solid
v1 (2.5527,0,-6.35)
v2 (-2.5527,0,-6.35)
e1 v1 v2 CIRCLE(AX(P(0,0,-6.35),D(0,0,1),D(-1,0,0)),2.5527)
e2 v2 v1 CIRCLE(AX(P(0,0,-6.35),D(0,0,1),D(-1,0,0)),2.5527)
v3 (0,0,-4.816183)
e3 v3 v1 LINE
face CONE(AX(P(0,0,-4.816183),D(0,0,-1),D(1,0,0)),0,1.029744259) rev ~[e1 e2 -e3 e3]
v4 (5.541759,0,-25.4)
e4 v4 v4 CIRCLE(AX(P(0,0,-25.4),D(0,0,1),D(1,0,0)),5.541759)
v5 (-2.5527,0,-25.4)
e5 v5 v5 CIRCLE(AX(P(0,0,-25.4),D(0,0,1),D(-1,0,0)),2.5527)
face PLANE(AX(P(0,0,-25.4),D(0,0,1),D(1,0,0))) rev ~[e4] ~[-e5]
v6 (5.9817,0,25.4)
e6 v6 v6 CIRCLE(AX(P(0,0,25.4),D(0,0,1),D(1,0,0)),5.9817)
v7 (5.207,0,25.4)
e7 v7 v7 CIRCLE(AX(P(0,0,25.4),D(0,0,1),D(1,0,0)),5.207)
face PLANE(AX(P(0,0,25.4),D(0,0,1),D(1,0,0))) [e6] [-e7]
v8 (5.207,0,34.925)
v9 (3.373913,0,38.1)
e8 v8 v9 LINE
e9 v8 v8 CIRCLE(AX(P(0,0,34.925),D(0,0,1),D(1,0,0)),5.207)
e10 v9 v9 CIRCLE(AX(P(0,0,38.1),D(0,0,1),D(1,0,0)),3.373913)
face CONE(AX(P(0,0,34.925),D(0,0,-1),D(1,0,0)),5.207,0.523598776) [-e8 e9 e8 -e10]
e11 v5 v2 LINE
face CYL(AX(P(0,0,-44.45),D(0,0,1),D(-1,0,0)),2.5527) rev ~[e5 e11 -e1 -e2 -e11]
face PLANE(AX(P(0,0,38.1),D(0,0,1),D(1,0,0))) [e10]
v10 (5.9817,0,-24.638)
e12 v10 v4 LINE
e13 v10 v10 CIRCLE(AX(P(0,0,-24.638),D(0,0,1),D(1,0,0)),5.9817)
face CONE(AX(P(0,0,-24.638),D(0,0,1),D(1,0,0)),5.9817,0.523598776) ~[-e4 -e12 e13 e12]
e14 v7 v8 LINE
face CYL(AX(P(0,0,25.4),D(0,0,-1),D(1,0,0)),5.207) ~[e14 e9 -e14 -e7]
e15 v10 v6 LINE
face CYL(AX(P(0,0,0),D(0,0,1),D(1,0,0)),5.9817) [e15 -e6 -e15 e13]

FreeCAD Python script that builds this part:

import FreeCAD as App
import Part
import Sketcher

V = App.Vector
Q = App.Units.Quantity


def edges_at(feature, points):
    """Names of the edges that pass closest to the given points."""
    edges = feature.Shape.Edges
    near = lambda p: min(range(len(edges)), key=lambda i: edges[i].distToShape(Part.Vertex(*p))[0])
    return sorted({f"Edge{near(p) + 1}" for p in points})

doc = App.newDocument("Part")
body = doc.addObject("PartDesign::Body", "Body")

# Sketch on XY plane
sketch1 = body.newObject("Sketcher::SketchObject", "Sketch")
sketch1.AttachmentSupport = (doc.getObject("XY_Plane"), [""])
sketch1.MapMode = "FlatFace"
sketch1.addGeometry(Part.Circle(V(0, 0, 0), V(0, 0, 1), 6), False)
sketch1.addConstraint([
    Sketcher.Constraint("Coincident", 0, 3, -1, 1),
    Sketcher.Constraint("Diameter", 0, Q("0.471 in")),
])
pad1 = body.newObject("PartDesign::Pad", "Pad")
pad1.Profile = sketch1
pad1.Length = Q("2 in")
pad1.Midplane = True

# Sketch on XY plane
sketch2 = body.newObject("Sketcher::SketchObject", "Sketch001")
sketch2.AttachmentSupport = (doc.getObject("XY_Plane"), [""])
sketch2.MapMode = "FlatFace"
sketch2.AttachmentOffset = App.Placement(V(0, 0, 1 * 25.4), App.Rotation())
sketch2.addGeometry(Part.Circle(V(0, 0, 0), V(0, 0, 1), 5), False)
sketch2.addConstraint([
    Sketcher.Constraint("Coincident", 0, 3, -1, 1),
    Sketcher.Constraint("Diameter", 0, Q("0.41 in")),
])
pad2 = body.newObject("PartDesign::Pad", "Pad001")
pad2.Profile = sketch2
pad2.Length = Q("0.5 in")
doc.recompute()

chamfer = body.newObject("PartDesign::Chamfer", "Chamfer")
chamfer.Base = (pad2, edges_at(pad2, [(-5.207, 0, 38.1)]))
chamfer.ChamferType = "Two distances"
chamfer.Size = Q("0.125 in")
chamfer.Size2 = 1.833087
doc.recompute()

chamfer2 = body.newObject("PartDesign::Chamfer", "Chamfer001")
chamfer2.Base = (chamfer, edges_at(chamfer, [(-5.982, 0, -25.4)]))
chamfer2.ChamferType = "Two distances"
chamfer2.Size = Q("0.03 in")
chamfer2.Size2 = 0.439941

# Sketch on XY plane
sketch3 = body.newObject("Sketcher::SketchObject", "Sketch002")
sketch3.AttachmentSupport = (doc.getObject("XY_Plane"), [""])
sketch3.MapMode = "FlatFace"
sketch3.AttachmentOffset = App.Placement(V(0, 0, -1 * 25.4), App.Rotation())
sketch3.addGeometry(Part.Circle(V(0, 0, 0), V(0, 0, 1), 2.6), False)
sketch3.addConstraint([
    Sketcher.Constraint("Coincident", 0, 3, -1, 1),
    Sketcher.Constraint("Diameter", 0, Q("0.201 in")),
])
doc.recompute()
hole = body.newObject("PartDesign::Hole", "Hole")
hole.Profile = sketch3
hole.ThreadType = "None"
hole.Diameter = Q("0.201 in")
hole.DepthType = "Dimension"
hole.Depth = Q("0.75 in")
hole.DrillPoint = "Angled"
hole.DrillPointAngle = 118
hole.Reversed = True

doc.recompute()
